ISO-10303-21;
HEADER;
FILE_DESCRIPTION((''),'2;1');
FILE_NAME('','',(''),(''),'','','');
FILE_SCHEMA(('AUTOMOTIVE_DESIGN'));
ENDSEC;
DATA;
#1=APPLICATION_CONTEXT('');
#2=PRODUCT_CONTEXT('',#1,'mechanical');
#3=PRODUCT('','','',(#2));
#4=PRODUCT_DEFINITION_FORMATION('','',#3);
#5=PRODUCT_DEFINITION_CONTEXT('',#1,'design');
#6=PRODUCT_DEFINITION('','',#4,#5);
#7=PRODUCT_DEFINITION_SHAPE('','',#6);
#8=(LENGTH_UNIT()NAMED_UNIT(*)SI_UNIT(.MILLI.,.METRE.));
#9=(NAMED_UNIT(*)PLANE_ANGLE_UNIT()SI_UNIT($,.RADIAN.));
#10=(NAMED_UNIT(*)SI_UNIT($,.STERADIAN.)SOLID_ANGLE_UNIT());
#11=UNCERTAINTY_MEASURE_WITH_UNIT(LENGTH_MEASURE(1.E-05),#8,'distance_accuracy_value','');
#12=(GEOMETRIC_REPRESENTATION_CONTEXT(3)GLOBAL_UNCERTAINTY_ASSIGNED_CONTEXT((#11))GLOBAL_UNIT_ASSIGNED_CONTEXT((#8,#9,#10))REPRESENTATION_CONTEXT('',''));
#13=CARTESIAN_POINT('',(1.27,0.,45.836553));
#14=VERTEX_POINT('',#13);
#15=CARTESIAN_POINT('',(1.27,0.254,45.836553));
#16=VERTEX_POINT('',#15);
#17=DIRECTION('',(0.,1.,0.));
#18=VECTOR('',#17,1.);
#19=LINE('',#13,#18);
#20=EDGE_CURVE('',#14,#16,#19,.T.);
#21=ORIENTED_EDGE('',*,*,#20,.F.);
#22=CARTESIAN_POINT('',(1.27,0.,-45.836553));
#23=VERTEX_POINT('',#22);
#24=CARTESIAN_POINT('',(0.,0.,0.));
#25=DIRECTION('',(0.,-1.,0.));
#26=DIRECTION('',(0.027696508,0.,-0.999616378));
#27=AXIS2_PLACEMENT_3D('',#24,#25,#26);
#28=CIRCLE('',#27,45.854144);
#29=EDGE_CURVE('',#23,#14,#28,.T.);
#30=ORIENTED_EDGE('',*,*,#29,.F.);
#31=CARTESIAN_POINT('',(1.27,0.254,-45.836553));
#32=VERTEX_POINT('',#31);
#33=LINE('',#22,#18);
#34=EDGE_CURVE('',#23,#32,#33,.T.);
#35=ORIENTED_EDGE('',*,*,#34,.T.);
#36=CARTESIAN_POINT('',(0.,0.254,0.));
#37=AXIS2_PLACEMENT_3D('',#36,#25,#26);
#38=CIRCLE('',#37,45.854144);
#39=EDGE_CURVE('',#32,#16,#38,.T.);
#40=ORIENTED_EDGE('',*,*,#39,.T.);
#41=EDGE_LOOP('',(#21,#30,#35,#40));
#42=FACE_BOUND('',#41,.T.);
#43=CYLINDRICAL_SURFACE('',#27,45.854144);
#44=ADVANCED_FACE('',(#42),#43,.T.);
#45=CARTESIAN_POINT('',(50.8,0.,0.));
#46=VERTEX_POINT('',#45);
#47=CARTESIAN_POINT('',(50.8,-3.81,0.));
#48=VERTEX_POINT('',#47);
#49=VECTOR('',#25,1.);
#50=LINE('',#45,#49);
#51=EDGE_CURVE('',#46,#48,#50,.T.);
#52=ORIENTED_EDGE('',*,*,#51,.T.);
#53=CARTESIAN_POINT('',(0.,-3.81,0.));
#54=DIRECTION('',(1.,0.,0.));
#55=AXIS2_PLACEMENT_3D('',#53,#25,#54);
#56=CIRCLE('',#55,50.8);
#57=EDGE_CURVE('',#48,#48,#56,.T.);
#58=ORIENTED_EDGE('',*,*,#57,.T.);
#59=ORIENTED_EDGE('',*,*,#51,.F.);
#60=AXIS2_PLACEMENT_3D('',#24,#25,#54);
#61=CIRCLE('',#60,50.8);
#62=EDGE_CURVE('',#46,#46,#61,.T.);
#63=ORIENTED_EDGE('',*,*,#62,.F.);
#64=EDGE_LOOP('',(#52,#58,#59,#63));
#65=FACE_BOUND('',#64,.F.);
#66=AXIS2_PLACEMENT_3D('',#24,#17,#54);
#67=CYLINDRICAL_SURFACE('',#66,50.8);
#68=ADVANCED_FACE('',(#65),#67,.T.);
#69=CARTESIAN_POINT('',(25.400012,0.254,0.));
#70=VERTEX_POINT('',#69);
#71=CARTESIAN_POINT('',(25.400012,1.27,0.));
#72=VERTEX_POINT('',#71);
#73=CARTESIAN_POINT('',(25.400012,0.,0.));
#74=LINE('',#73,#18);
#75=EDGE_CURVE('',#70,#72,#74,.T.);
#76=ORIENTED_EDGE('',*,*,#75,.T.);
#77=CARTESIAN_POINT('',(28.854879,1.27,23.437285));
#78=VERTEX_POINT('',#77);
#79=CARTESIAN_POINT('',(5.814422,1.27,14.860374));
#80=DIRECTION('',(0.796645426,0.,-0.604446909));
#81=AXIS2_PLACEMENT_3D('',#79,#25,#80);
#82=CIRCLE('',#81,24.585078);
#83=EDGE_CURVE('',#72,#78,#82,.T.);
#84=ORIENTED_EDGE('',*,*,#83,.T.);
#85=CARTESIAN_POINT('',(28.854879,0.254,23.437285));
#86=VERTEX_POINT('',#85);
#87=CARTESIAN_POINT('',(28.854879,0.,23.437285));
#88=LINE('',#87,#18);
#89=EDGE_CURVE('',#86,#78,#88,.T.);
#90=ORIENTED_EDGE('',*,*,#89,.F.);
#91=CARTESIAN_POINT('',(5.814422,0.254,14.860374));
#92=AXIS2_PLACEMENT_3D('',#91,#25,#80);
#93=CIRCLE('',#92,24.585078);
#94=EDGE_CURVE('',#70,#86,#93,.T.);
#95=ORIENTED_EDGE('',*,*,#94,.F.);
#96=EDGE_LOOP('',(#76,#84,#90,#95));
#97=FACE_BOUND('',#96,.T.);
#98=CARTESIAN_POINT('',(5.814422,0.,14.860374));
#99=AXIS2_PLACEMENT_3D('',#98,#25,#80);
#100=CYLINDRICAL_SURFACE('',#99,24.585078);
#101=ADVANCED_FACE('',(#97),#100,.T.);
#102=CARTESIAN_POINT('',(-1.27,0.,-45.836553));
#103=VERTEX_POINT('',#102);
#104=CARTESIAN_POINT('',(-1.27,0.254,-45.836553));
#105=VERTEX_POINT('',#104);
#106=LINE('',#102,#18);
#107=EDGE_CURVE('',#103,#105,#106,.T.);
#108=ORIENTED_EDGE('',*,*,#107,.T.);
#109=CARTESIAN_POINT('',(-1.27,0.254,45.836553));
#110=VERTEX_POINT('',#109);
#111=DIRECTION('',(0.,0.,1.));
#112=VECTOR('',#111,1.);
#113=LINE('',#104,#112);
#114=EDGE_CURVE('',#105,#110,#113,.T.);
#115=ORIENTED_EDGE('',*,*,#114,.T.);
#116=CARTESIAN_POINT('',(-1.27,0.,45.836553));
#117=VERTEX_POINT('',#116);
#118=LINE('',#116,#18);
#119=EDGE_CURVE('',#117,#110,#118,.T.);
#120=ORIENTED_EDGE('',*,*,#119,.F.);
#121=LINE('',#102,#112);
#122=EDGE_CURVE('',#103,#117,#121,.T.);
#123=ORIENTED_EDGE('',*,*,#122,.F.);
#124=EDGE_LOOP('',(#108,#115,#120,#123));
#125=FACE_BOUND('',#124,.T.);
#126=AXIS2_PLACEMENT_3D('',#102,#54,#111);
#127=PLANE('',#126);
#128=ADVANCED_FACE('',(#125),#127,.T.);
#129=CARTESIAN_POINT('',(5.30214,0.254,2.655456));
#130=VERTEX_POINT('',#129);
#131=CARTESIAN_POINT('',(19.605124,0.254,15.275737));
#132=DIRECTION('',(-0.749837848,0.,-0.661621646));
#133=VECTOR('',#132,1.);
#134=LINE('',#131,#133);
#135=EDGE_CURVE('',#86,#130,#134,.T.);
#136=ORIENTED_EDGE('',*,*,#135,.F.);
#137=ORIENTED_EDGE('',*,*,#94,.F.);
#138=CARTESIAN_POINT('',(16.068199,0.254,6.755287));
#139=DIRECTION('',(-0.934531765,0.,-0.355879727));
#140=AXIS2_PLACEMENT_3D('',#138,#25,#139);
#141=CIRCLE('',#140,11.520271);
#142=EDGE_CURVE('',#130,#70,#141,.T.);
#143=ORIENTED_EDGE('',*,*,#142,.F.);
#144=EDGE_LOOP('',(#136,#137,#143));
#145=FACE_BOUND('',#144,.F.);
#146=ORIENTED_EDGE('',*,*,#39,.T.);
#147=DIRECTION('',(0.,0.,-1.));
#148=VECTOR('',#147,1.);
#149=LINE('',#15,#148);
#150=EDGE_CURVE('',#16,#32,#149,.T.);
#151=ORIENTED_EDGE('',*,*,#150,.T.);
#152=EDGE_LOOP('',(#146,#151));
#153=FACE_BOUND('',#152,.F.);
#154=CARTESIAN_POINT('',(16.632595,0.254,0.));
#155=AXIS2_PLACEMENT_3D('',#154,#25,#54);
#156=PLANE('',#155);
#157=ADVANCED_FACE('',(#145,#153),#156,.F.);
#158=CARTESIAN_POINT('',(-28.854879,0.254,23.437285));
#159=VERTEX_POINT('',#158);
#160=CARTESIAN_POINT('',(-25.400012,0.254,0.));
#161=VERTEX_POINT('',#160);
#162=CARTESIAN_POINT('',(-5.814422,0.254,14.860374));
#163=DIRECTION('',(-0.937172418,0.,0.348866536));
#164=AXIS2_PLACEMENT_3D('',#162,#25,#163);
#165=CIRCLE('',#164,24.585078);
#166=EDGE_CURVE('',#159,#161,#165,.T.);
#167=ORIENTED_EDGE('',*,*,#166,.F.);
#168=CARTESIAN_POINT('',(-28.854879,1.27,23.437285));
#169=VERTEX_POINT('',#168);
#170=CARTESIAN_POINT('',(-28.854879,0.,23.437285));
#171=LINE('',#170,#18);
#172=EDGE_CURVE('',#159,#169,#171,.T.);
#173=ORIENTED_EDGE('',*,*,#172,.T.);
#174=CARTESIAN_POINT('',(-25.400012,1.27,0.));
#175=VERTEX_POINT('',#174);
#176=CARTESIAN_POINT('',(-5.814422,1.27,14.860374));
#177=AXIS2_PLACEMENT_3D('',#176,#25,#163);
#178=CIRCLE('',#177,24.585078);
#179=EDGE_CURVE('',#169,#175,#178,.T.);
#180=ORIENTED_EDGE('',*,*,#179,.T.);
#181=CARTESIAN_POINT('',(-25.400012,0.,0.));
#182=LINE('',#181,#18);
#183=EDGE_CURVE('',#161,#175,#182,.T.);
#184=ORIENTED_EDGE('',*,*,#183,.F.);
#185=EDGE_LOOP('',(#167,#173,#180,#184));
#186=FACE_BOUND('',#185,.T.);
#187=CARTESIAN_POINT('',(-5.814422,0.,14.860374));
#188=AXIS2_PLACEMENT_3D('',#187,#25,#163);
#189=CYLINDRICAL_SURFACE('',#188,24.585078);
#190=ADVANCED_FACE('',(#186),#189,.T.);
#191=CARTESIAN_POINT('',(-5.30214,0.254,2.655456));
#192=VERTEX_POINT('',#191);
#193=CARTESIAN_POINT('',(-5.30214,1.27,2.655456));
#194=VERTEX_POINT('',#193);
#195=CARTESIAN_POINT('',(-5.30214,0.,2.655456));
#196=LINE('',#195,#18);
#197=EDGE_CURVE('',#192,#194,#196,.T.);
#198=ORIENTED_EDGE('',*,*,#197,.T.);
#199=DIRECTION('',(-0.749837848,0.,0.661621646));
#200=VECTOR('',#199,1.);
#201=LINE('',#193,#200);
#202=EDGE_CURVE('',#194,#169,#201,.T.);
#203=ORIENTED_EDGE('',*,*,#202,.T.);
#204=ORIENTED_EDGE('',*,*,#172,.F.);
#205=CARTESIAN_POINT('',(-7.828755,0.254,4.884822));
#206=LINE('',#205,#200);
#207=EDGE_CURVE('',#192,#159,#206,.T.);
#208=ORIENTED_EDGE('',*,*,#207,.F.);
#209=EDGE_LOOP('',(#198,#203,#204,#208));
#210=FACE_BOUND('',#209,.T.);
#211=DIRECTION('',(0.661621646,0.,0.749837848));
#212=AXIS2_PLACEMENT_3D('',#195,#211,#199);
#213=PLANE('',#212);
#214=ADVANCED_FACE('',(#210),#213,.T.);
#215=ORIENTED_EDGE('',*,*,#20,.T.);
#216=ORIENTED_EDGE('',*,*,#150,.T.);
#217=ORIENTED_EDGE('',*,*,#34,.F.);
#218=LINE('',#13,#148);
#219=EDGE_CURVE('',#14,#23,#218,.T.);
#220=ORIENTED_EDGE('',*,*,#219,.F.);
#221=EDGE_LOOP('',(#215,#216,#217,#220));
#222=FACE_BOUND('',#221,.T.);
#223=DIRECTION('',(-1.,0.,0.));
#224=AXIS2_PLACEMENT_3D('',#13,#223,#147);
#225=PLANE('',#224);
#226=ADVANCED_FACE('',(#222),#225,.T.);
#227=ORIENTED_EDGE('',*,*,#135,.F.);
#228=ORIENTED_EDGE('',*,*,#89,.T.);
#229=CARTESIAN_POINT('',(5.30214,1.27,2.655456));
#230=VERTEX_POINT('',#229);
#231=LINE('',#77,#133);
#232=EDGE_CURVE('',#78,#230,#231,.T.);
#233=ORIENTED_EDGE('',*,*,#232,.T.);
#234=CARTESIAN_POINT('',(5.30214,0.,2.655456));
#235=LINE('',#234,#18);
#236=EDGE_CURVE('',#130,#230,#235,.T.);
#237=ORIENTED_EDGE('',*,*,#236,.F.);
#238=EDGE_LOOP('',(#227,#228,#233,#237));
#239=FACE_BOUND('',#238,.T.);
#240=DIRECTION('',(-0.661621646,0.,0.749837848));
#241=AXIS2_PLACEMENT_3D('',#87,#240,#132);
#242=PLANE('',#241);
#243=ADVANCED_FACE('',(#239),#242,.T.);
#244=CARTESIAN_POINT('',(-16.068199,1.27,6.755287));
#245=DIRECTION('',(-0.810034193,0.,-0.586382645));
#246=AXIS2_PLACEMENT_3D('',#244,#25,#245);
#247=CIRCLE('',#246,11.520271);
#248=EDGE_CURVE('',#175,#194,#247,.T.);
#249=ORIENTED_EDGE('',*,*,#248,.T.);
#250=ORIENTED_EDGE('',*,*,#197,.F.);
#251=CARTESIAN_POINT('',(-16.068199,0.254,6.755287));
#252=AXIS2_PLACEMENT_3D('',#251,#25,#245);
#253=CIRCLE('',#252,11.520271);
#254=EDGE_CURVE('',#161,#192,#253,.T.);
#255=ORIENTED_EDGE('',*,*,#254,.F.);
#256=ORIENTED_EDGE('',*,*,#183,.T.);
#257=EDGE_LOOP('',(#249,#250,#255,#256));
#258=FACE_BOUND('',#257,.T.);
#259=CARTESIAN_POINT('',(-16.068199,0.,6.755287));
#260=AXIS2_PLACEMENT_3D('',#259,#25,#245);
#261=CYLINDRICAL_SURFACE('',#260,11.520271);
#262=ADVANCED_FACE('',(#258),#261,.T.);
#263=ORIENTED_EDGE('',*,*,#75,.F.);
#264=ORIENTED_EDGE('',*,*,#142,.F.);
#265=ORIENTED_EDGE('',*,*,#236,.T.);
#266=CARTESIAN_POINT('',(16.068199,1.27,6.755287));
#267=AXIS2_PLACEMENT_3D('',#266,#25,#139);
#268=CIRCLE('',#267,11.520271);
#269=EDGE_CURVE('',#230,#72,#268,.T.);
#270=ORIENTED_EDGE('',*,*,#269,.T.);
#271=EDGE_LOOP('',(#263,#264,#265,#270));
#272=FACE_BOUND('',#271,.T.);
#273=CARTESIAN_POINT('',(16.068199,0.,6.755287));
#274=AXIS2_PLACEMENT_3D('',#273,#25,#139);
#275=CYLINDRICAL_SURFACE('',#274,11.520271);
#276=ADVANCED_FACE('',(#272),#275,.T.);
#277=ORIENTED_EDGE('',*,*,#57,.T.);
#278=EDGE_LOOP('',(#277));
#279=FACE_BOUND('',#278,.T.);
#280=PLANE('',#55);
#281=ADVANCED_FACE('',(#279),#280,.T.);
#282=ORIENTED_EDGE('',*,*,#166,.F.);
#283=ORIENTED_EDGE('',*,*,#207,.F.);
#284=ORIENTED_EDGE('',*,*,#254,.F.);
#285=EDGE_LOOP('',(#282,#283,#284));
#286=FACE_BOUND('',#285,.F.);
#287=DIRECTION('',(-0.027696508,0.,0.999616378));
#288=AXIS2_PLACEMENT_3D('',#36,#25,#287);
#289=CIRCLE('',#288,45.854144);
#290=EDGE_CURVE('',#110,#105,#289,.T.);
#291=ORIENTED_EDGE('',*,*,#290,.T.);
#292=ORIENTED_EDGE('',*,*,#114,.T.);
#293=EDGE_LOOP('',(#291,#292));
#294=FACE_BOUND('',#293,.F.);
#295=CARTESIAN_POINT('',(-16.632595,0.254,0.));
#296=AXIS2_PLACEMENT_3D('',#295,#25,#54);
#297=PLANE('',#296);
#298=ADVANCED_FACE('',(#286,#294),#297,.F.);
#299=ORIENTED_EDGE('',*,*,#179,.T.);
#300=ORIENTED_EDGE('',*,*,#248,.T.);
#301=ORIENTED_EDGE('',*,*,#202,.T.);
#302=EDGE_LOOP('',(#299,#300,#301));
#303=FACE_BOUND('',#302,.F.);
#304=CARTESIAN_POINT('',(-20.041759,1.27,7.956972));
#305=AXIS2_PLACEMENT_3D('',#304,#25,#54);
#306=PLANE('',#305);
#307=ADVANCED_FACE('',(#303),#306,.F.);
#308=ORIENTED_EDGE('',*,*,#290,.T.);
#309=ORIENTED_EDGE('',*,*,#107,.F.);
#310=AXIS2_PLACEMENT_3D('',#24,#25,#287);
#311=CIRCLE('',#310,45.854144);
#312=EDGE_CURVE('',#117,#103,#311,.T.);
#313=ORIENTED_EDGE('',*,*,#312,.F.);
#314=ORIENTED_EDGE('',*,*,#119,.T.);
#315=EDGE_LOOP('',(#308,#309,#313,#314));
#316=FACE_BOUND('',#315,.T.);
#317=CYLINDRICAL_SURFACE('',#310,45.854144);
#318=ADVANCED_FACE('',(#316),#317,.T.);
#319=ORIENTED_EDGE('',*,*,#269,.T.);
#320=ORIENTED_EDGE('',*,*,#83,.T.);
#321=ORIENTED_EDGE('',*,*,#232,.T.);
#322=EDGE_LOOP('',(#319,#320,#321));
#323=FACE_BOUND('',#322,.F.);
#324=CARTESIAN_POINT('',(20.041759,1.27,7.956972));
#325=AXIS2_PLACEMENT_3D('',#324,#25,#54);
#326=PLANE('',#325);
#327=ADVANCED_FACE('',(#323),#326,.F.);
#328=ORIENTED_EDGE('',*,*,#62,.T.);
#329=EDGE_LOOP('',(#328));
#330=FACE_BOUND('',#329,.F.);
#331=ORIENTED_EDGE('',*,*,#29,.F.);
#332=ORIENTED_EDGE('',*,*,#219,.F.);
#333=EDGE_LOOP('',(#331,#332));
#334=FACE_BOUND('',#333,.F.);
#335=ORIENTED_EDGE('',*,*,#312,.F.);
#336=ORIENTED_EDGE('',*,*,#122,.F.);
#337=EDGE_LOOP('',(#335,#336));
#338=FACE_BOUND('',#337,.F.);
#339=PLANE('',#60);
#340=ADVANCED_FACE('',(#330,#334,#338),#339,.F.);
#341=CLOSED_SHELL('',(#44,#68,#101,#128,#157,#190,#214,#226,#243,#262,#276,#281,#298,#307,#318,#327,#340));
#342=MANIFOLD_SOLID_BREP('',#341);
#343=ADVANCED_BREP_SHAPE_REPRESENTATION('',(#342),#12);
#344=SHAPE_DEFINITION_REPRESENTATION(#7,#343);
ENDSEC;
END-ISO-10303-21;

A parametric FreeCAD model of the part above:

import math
import FreeCAD as App
import Part
import Sketcher
Q = App.Units.Quantity

doc = App.newDocument("Part")
body = doc.addObject("PartDesign::Body", "Body")

sketch1 = body.newObject("Sketcher::SketchObject", "Sketch")
sketch1.AttachmentSupport = (doc.getObject("XZ_Plane"), [""])
sketch1.MapMode = "FlatFace"
sketch1.addGeometry(Part.Circle(App.Vector(0, 0, 0), App.Vector(0, 0, 1), 51), False)
sketch1.addConstraint(Sketcher.Constraint("Coincident", 0, 3, -1, 1))
sketch1.addConstraint(Sketcher.Constraint("Diameter", 0, Q("4 in")))
pad1 = body.newObject("PartDesign::Pad", "Pad")
pad1.Profile = sketch1
pad1.Length = Q("0.15 in")

sketch2 = body.newObject("Sketcher::SketchObject", "Sketch001")
sketch2.AttachmentSupport = (doc.getObject("XZ_Plane"), [""])
sketch2.MapMode = "FlatFace"
sketch2.addGeometry(Part.LineSegment(App.Vector(-1, -46, 0), App.Vector(-1, 46, 0)), False)
sketch2.addGeometry(Part.ArcOfCircle(Part.Circle(App.Vector(0, 0, 0), App.Vector(0, 0, 1), 46), math.radians(92), math.radians(268)), False)
sketch2.addGeometry(Part.ArcOfCircle(Part.Circle(App.Vector(0, 0, 0), App.Vector(0, 0, 1), 46), math.radians(-88), math.radians(88)), False)
sketch2.addGeometry(Part.LineSegment(App.Vector(1, 46, 0), App.Vector(1, -46, 0)), False)
sketch2.addConstraint(Sketcher.Constraint("Coincident", 0, 1, 1, 2))
sketch2.addConstraint(Sketcher.Constraint("Coincident", 1, 1, 0, 2))
sketch2.addConstraint(Sketcher.Constraint("Coincident", 2, 1, 3, 2))
sketch2.addConstraint(Sketcher.Constraint("Coincident", 3, 1, 2, 2))
sketch2.addConstraint(Sketcher.Constraint("Vertical", 0))
sketch2.addConstraint(Sketcher.Constraint("Vertical", 3))
sketch2.addConstraint(Sketcher.Constraint("Coincident", 1, 3, -1, 1))
sketch2.addConstraint(Sketcher.Constraint("Coincident", 2, 3, -1, 1))
sketch2.addConstraint(Sketcher.Constraint("Equal", 1, 2))
sketch2.addConstraint(Sketcher.Constraint("Horizontal", 0, 1, 2, 1))
sketch2.addConstraint(Sketcher.Constraint("DistanceX", 0, 1, 2, 1, Q("0.1 in")))
sketch2.addConstraint(Sketcher.Constraint("Radius", 1, Q("45.854144 mm")))
pad2 = body.newObject("PartDesign::Pad", "Pad001")
pad2.Profile = sketch2
pad2.Length = Q("0.01 in")
pad2.Reversed = True

sketch3 = body.newObject("Sketcher::SketchObject", "Sketch002")
sketch3.AttachmentSupport = (doc.getObject("XZ_Plane"), [""])
sketch3.MapMode = "FlatFace"
sketch3.addGeometry(Part.ArcOfCircle(Part.Circle(App.Vector(-16, 7, 0), App.Vector(0, 0, 1), 12), math.radians(-144), math.radians(-21)), False)
sketch3.addGeometry(Part.LineSegment(App.Vector(-5, 3, 0), App.Vector(-29, 23, 0)), False)
sketch3.addGeometry(Part.ArcOfCircle(Part.Circle(App.Vector(-6, 15, 0), App.Vector(0, 0, 1), 25), math.radians(160), math.radians(217)), False)
sketch3.addGeometry(Part.LineSegment(App.Vector(29, 23, 0), App.Vector(5, 3, 0)), False)
sketch3.addGeometry(Part.ArcOfCircle(Part.Circle(App.Vector(16, 7, 0), App.Vector(0, 0, 1), 12), math.radians(-159), math.radians(-36)), False)
sketch3.addGeometry(Part.ArcOfCircle(Part.Circle(App.Vector(6, 15, 0), App.Vector(0, 0, 1), 25), math.radians(-37), math.radians(20)), False)
sketch3.addConstraint(Sketcher.Constraint("Coincident", 0, 2, 1, 1))
sketch3.addConstraint(Sketcher.Constraint("Coincident", 1, 2, 2, 1))
sketch3.addConstraint(Sketcher.Constraint("Coincident", 2, 2, 0, 1))
sketch3.addConstraint(Sketcher.Constraint("Coincident", 3, 2, 4, 1))
sketch3.addConstraint(Sketcher.Constraint("Coincident", 4, 2, 5, 1))
sketch3.addConstraint(Sketcher.Constraint("Coincident", 5, 2, 3, 1))
sketch3.addConstraint(Sketcher.Constraint("Equal", 0, 4))
sketch3.addConstraint(Sketcher.Constraint("Equal", 2, 5))
sketch3.addConstraint(Sketcher.Constraint("Symmetric", 2, 2, 4, 2, -1, 1))
sketch3.addConstraint(Sketcher.Constraint("Symmetric", 0, 3, 4, 3, -2))
sketch3.addConstraint(Sketcher.Constraint("Symmetric", 1, 2, 5, 2, -2))
sketch3.addConstraint(Sketcher.Constraint("Horizontal", 0, 2, 3, 2))
sketch3.addConstraint(Sketcher.Constraint("Radius", 0, Q("11.520271 mm")))
sketch3.addConstraint(Sketcher.Constraint("Radius", 2, Q("24.585078 mm")))
sketch3.addConstraint(Sketcher.Constraint("DistanceX", 0, 3, -1, 1, Q("16.068199 mm")))
sketch3.addConstraint(Sketcher.Constraint("DistanceY", 0, 3, 1, 2, Q("16.681998 mm")))
sketch3.addConstraint(Sketcher.Constraint("DistanceX", 1, 2, 5, 3, Q("34.669301 mm")))
sketch3.addConstraint(Sketcher.Constraint("DistanceX", 0, 2, -1, 1, Q("5.30214 mm")))
sketch3.addConstraint(Sketcher.Constraint("DistanceX", 1, 2, -1, 1, Q("28.854879 mm")))
pad3 = body.newObject("PartDesign::Pad", "Pad002")
pad3.Profile = sketch3
pad3.Length = Q("0.05 in")
pad3.Reversed = True

doc.recompute()
